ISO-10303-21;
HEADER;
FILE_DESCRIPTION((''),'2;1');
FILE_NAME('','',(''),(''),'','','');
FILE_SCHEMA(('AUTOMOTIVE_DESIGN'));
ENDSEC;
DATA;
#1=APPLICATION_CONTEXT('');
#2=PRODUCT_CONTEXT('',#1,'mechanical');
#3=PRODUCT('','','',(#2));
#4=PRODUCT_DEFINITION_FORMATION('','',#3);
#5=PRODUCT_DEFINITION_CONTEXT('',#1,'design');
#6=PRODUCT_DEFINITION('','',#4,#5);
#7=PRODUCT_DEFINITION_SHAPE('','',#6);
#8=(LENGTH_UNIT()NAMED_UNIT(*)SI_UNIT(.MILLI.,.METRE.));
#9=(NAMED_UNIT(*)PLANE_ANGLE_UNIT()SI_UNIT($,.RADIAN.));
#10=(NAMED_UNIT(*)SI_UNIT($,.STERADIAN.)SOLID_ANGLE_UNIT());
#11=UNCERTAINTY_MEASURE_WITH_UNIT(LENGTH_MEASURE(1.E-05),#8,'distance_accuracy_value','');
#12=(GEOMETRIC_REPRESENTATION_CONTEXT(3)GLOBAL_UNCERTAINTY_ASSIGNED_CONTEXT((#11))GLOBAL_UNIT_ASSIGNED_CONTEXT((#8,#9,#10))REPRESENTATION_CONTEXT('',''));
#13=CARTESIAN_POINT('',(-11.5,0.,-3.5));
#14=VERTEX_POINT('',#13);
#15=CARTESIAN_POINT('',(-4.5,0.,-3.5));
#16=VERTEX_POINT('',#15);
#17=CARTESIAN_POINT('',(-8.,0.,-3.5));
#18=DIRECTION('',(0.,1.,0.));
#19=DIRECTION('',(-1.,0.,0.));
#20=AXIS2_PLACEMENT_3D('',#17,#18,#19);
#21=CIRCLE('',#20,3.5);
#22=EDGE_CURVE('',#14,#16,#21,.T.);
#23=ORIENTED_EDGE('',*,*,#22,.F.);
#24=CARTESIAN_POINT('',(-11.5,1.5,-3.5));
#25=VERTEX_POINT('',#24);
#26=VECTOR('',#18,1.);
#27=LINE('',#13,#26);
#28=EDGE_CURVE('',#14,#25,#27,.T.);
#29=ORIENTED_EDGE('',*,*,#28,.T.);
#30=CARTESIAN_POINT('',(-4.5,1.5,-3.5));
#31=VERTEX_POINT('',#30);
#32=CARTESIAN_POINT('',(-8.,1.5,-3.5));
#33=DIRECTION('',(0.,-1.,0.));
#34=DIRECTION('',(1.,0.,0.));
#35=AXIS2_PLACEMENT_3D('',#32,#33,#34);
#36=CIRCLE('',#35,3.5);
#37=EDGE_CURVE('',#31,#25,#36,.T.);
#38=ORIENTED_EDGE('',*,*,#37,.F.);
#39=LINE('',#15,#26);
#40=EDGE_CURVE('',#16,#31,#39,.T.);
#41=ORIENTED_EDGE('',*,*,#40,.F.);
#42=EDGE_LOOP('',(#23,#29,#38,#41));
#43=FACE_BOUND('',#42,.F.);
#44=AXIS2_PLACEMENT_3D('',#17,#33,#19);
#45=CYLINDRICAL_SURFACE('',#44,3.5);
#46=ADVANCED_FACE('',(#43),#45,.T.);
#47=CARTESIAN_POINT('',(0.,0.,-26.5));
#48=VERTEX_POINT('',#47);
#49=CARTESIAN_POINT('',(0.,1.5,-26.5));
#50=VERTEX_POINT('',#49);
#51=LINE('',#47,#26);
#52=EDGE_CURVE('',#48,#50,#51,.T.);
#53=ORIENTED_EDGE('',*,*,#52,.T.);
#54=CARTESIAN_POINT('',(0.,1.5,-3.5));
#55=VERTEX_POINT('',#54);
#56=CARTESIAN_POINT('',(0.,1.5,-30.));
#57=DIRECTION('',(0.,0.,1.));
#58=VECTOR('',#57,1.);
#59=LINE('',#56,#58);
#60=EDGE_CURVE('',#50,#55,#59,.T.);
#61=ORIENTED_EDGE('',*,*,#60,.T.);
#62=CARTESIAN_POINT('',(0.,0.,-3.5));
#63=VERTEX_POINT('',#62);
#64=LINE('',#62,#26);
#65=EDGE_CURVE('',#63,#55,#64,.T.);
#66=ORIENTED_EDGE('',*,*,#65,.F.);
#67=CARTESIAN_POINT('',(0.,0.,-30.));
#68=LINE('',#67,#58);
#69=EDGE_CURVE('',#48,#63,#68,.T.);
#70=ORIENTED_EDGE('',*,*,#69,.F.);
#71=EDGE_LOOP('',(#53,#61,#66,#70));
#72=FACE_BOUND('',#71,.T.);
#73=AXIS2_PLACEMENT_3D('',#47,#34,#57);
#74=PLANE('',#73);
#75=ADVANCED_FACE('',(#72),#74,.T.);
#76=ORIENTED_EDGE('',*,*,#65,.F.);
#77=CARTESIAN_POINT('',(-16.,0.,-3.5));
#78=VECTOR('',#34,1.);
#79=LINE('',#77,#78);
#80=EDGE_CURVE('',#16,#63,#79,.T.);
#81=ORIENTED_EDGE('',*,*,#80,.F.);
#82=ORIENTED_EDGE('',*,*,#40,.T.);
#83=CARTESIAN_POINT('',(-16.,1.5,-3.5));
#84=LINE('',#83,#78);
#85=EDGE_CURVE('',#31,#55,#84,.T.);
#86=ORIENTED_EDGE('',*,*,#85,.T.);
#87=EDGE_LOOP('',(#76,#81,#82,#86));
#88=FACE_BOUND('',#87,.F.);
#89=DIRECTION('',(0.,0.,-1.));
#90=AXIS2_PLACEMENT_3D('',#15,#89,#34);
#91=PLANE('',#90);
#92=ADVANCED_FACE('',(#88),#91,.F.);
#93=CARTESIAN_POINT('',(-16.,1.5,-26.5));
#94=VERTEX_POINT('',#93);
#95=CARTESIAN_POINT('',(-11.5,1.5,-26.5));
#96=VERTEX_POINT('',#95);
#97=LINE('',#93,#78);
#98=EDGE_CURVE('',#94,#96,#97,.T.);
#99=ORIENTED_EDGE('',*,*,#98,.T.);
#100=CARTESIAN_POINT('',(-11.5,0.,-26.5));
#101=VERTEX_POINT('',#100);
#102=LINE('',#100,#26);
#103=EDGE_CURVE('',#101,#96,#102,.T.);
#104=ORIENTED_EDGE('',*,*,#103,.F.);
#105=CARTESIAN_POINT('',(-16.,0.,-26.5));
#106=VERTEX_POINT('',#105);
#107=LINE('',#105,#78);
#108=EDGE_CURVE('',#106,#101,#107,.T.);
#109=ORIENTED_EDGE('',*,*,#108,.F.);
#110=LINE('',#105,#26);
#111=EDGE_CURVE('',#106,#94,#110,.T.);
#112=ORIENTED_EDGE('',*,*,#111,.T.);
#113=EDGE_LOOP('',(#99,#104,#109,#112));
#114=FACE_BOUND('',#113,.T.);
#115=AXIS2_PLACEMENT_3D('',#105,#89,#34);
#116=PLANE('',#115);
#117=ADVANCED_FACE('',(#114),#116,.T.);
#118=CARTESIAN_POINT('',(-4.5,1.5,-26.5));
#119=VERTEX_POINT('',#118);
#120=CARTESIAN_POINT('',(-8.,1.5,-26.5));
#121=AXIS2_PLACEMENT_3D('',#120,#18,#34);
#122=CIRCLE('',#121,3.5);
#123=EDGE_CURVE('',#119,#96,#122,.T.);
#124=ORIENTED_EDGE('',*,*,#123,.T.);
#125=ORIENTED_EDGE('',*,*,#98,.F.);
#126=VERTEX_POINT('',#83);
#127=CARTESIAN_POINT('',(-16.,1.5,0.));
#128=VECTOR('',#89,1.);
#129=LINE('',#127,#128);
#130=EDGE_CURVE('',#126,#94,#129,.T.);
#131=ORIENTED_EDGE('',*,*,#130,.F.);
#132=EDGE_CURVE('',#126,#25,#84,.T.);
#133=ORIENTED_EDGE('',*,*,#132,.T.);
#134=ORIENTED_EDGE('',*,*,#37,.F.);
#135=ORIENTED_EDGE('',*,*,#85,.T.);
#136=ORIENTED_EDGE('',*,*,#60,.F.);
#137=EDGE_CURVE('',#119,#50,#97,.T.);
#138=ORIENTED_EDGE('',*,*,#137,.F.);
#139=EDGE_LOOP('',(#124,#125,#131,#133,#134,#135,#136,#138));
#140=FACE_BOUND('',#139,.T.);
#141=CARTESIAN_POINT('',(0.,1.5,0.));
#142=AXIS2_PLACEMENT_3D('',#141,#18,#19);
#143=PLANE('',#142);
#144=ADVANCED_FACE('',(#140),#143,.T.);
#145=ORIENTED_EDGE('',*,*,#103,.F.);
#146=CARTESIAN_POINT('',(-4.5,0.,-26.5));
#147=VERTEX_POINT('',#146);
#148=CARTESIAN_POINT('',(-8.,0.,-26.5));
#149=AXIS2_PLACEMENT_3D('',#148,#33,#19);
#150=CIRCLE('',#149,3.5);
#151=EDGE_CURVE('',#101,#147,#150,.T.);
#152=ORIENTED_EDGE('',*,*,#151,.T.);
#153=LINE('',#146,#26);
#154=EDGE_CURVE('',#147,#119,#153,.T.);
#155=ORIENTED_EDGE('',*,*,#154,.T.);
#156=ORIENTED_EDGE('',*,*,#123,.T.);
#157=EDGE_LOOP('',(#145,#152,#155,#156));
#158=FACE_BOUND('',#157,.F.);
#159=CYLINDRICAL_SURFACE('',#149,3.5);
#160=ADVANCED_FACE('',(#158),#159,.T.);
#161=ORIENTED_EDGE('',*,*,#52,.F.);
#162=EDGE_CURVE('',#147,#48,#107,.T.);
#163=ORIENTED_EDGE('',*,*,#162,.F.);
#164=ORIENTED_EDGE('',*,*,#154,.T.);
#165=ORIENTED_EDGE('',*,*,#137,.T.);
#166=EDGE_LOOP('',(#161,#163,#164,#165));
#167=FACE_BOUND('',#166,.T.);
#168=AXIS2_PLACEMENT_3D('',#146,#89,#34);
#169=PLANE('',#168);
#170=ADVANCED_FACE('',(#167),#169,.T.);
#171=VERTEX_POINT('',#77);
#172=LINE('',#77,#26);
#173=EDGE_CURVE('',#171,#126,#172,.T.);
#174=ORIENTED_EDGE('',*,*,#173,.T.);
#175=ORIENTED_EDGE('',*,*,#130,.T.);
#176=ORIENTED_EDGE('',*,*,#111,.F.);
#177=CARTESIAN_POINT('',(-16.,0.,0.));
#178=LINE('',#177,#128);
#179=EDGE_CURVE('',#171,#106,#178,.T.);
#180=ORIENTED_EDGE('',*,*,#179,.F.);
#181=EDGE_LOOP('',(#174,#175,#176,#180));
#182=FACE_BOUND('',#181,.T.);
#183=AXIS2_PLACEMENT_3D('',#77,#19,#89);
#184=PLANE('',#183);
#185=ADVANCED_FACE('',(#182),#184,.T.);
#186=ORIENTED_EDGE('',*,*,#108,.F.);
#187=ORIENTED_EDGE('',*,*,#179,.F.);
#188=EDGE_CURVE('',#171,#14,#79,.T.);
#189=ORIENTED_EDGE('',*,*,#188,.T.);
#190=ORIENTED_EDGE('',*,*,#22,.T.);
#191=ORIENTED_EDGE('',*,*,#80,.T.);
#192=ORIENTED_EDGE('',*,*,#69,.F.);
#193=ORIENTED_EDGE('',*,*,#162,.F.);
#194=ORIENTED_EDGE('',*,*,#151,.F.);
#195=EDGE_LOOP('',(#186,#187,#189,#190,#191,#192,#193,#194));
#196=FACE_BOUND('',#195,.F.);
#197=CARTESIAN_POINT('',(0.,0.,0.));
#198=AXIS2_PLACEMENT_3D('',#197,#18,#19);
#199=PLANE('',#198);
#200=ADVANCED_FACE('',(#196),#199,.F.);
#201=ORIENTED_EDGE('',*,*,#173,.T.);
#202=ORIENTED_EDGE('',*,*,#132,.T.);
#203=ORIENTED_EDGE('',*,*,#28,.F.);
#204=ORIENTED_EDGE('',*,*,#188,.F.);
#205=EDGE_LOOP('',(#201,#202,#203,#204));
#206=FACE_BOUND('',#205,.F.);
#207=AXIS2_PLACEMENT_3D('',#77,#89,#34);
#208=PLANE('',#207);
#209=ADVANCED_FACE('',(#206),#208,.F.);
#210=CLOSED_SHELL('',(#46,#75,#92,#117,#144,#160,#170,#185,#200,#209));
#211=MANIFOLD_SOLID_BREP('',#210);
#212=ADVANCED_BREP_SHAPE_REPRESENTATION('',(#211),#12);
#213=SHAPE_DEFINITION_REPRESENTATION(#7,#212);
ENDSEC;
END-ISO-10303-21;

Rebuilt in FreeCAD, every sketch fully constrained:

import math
import FreeCAD as App
import Part
import Sketcher
from FreeCAD import Vector
Q = App.Units.Quantity

doc = App.newDocument("Part")
body = doc.addObject("PartDesign::Body", "Body")

# Sketch on XZ plane
sketch1 = body.newObject("Sketcher::SketchObject", "Sketch")
sketch1.AttachmentSupport = (doc.getObject("XZ_Plane"), [""])
sketch1.MapMode = "FlatFace"
sketch1.addGeometry([
    Part.ArcOfCircle(Part.Circle(Vector(-8, -3.5, 0), Vector(0, 0, 1), 3.5), math.radians(0), math.radians(180)),  # 0
    Part.LineSegment(Vector(-4.5, -3.5, 0), Vector(0, -3.5, 0)),  # 1
    Part.LineSegment(Vector(0, -3.5, 0), Vector(0, -26.5, 0)),  # 2
    Part.LineSegment(Vector(0, -26.5, 0), Vector(-4.5, -26.5, 0)),  # 3
    Part.ArcOfCircle(Part.Circle(Vector(-8, -26.5, 0), Vector(0, 0, 1), 3.5), math.radians(180), math.radians(360)),  # 4
    Part.LineSegment(Vector(-11.5, -26.5, 0), Vector(-16, -26.5, 0)),  # 5
    Part.LineSegment(Vector(-16, -26.5, 0), Vector(-16, -3.5, 0)),  # 6
    Part.LineSegment(Vector(-16, -3.5, 0), Vector(-11.5, -3.5, 0)),  # 7
], False)
sketch1.addConstraint([
    Sketcher.Constraint("Coincident", 0, 1, 1, 1),
    Sketcher.Constraint("Coincident", 1, 2, 2, 1),
    Sketcher.Constraint("Coincident", 2, 2, 3, 1),
    Sketcher.Constraint("Coincident", 3, 2, 4, 2),
    Sketcher.Constraint("Coincident", 4, 1, 5, 1),
    Sketcher.Constraint("Coincident", 5, 2, 6, 1),
    Sketcher.Constraint("Coincident", 6, 2, 7, 1),
    Sketcher.Constraint("Coincident", 7, 2, 0, 2),
    Sketcher.Constraint("Horizontal", 1),
    Sketcher.Constraint("Vertical", 2),
    Sketcher.Constraint("Horizontal", 3),
    Sketcher.Constraint("Horizontal", 5),
    Sketcher.Constraint("Vertical", 6),
    Sketcher.Constraint("Horizontal", 7),
    Sketcher.Constraint("Equal", 0, 4),
    Sketcher.Constraint("PointOnObject", 1, 2, -2),
    Sketcher.Constraint("Horizontal", 4, 3, 2, 2),
    Sketcher.Constraint("Horizontal", 3, 2, 4, 1),
    Sketcher.Constraint("Horizontal", 1, 2, 6, 2),
    Sketcher.Constraint("Vertical", 0, 3, 4, 3),
    Sketcher.Constraint("Equal", 3, 5),
    Sketcher.Constraint("Radius", 0, Q("3.5 mm")),
    Sketcher.Constraint("DistanceX", 5, 2, -1, 1, Q("16 mm")),
    Sketcher.Constraint("DistanceY", 2, 2, 2, 1, Q("23 mm")),
    Sketcher.Constraint("DistanceY", 4, 3, 0, 3, Q("23 mm")),
    Sketcher.Constraint("DistanceY", 0, 3, -1, 1, Q("3.5 mm")),
])
pad1 = body.newObject("PartDesign::Pad", "Pad")
pad1.Profile = sketch1
pad1.Length = 1.5
pad1.Reversed = True

doc.recompute()
